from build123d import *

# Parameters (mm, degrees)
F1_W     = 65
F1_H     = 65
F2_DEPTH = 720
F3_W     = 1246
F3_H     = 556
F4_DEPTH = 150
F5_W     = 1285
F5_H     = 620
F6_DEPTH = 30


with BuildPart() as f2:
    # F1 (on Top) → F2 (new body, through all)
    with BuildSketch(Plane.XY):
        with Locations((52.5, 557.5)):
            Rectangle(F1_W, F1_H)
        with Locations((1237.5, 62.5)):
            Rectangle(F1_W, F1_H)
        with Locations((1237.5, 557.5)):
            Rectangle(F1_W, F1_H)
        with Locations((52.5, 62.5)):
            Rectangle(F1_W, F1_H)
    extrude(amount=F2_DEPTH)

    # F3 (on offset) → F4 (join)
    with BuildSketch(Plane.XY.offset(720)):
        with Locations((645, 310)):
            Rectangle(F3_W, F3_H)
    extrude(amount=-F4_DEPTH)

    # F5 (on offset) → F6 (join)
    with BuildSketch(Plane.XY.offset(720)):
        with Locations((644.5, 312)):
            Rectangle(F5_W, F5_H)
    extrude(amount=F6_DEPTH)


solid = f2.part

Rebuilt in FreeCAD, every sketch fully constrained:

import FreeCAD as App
import Part
import Sketcher

V = App.Vector
Q = App.Units.Quantity


def add_polygon(sketch, points):
    """Adds a closed chain of lines whose ends are joined by coincident constraints."""
    first, n = sketch.GeometryCount, len(points)
    for a, b in zip(points, points[1:] + points[:1]):
        sketch.addGeometry(Part.LineSegment(App.Vector(*a, 0), App.Vector(*b, 0)), False)
    for i in range(n):
        sketch.addConstraint(Sketcher.Constraint("Coincident", first + i, 2, first + (i + 1) % n, 1))

doc = App.newDocument("Part")
body = doc.addObject("PartDesign::Body", "Body")
body.AllowCompound = True

# Sketch on XY plane
sketch1 = body.newObject("Sketcher::SketchObject", "Sketch")
sketch1.AttachmentSupport = (doc.getObject("XY_Plane"), [""])
sketch1.MapMode = "FlatFace"
add_polygon(sketch1, [(20, 590), (20, 525), (85, 525), (85, 590)])  # lines 0-3
add_polygon(sketch1, [(1205, 95), (1205, 30), (1270, 30), (1270, 95)])  # lines 4-7
add_polygon(sketch1, [(1205, 590), (1205, 525), (1270, 525), (1270, 590)])  # lines 8-11
add_polygon(sketch1, [(20, 95), (20, 30), (85, 30), (85, 95)])  # lines 12-15
sketch1.addConstraint([
    Sketcher.Constraint("Vertical", 0),
    Sketcher.Constraint("Horizontal", 1),
    Sketcher.Constraint("Vertical", 2),
    Sketcher.Constraint("Horizontal", 3),
    Sketcher.Constraint("Vertical", 4),
    Sketcher.Constraint("Horizontal", 5),
    Sketcher.Constraint("Vertical", 6),
    Sketcher.Constraint("Horizontal", 7),
    Sketcher.Constraint("Vertical", 8),
    Sketcher.Constraint("Horizontal", 9),
    Sketcher.Constraint("Vertical", 10),
    Sketcher.Constraint("Horizontal", 11),
    Sketcher.Constraint("Vertical", 12),
    Sketcher.Constraint("Horizontal", 13),
    Sketcher.Constraint("Vertical", 14),
    Sketcher.Constraint("Horizontal", 15),
    Sketcher.Constraint("Horizontal", 1, 2, 8, 2),
    Sketcher.Constraint("Horizontal", 3, 2, 10, 2),
    Sketcher.Constraint("Horizontal", 5, 2, 12, 2),
    Sketcher.Constraint("Horizontal", 7, 2, 14, 2),
    Sketcher.Constraint("Vertical", 7, 2, 8, 2),
    Sketcher.Constraint("Vertical", 6, 2, 9, 2),
    Sketcher.Constraint("Vertical", 3, 2, 12, 2),
    Sketcher.Constraint("Vertical", 2, 2, 13, 2),
    Sketcher.Constraint("Equal", 3, 5),
    Sketcher.Constraint("Equal", 15, 0),
    Sketcher.Constraint("Equal", 2, 4),
    Sketcher.Constraint("DistanceX", 1, 1, 1, 2, Q("65 mm")),
    Sketcher.Constraint("DistanceX", -1, 1, 0, 2, Q("20 mm")),
    Sketcher.Constraint("DistanceY", -1, 1, 0, 2, Q("525 mm")),
    Sketcher.Constraint("DistanceX", -1, 1, 4, 2, Q("1205 mm")),
    Sketcher.Constraint("DistanceY", -1, 1, 4, 2, Q("30 mm")),
])
pad1 = body.newObject("PartDesign::Pad", "Pad")
pad1.Profile = sketch1
pad1.Length = 720

# Sketch on XY plane
sketch2 = body.newObject("Sketcher::SketchObject", "Sketch001")
sketch2.AttachmentSupport = (doc.getObject("XY_Plane"), [""])
sketch2.MapMode = "FlatFace"
sketch2.AttachmentOffset = App.Placement(V(0, 0, 720), App.Rotation())
add_polygon(sketch2, [(22, 588), (22, 32), (1268, 32), (1268, 588)])  # lines 0-3
sketch2.addConstraint([
    Sketcher.Constraint("Vertical", 0),
    Sketcher.Constraint("Horizontal", 1),
    Sketcher.Constraint("Vertical", 2),
    Sketcher.Constraint("Horizontal", 3),
    Sketcher.Constraint("DistanceX", 1, 1, 1, 2, Q("1246 mm")),
    Sketcher.Constraint("DistanceY", 0, 2, 0, 1, Q("556 mm")),
    Sketcher.Constraint("DistanceX", -1, 1, 0, 2, Q("22 mm")),
    Sketcher.Constraint("DistanceY", -1, 1, 0, 2, Q("32 mm")),
])
pad2 = body.newObject("PartDesign::Pad", "Pad001")
pad2.Profile = sketch2
pad2.Length = 150
pad2.Reversed = True

# Sketch on XY plane
sketch3 = body.newObject("Sketcher::SketchObject", "Sketch002")
sketch3.AttachmentSupport = (doc.getObject("XY_Plane"), [""])
sketch3.MapMode = "FlatFace"
sketch3.AttachmentOffset = App.Placement(V(0, 0, 720), App.Rotation())
add_polygon(sketch3, [(2, 622), (2, 2), (1287, 2), (1287, 622)])  # lines 0-3
sketch3.addConstraint([
    Sketcher.Constraint("Vertical", 0),
    Sketcher.Constraint("Horizontal", 1),
    Sketcher.Constraint("Vertical", 2),
    Sketcher.Constraint("Horizontal", 3),
    Sketcher.Constraint("DistanceX", 1, 1, 1, 2, Q("1285 mm")),
    Sketcher.Constraint("DistanceY", 0, 2, 0, 1, Q("620 mm")),
    Sketcher.Constraint("DistanceX", -1, 1, 0, 2, Q("2 mm")),
    Sketcher.Constraint("DistanceY", -1, 1, 0, 2, Q("2 mm")),
])
pad3 = body.newObject("PartDesign::Pad", "Pad002")
pad3.Profile = sketch3
pad3.Length = 30

doc.recompute()
